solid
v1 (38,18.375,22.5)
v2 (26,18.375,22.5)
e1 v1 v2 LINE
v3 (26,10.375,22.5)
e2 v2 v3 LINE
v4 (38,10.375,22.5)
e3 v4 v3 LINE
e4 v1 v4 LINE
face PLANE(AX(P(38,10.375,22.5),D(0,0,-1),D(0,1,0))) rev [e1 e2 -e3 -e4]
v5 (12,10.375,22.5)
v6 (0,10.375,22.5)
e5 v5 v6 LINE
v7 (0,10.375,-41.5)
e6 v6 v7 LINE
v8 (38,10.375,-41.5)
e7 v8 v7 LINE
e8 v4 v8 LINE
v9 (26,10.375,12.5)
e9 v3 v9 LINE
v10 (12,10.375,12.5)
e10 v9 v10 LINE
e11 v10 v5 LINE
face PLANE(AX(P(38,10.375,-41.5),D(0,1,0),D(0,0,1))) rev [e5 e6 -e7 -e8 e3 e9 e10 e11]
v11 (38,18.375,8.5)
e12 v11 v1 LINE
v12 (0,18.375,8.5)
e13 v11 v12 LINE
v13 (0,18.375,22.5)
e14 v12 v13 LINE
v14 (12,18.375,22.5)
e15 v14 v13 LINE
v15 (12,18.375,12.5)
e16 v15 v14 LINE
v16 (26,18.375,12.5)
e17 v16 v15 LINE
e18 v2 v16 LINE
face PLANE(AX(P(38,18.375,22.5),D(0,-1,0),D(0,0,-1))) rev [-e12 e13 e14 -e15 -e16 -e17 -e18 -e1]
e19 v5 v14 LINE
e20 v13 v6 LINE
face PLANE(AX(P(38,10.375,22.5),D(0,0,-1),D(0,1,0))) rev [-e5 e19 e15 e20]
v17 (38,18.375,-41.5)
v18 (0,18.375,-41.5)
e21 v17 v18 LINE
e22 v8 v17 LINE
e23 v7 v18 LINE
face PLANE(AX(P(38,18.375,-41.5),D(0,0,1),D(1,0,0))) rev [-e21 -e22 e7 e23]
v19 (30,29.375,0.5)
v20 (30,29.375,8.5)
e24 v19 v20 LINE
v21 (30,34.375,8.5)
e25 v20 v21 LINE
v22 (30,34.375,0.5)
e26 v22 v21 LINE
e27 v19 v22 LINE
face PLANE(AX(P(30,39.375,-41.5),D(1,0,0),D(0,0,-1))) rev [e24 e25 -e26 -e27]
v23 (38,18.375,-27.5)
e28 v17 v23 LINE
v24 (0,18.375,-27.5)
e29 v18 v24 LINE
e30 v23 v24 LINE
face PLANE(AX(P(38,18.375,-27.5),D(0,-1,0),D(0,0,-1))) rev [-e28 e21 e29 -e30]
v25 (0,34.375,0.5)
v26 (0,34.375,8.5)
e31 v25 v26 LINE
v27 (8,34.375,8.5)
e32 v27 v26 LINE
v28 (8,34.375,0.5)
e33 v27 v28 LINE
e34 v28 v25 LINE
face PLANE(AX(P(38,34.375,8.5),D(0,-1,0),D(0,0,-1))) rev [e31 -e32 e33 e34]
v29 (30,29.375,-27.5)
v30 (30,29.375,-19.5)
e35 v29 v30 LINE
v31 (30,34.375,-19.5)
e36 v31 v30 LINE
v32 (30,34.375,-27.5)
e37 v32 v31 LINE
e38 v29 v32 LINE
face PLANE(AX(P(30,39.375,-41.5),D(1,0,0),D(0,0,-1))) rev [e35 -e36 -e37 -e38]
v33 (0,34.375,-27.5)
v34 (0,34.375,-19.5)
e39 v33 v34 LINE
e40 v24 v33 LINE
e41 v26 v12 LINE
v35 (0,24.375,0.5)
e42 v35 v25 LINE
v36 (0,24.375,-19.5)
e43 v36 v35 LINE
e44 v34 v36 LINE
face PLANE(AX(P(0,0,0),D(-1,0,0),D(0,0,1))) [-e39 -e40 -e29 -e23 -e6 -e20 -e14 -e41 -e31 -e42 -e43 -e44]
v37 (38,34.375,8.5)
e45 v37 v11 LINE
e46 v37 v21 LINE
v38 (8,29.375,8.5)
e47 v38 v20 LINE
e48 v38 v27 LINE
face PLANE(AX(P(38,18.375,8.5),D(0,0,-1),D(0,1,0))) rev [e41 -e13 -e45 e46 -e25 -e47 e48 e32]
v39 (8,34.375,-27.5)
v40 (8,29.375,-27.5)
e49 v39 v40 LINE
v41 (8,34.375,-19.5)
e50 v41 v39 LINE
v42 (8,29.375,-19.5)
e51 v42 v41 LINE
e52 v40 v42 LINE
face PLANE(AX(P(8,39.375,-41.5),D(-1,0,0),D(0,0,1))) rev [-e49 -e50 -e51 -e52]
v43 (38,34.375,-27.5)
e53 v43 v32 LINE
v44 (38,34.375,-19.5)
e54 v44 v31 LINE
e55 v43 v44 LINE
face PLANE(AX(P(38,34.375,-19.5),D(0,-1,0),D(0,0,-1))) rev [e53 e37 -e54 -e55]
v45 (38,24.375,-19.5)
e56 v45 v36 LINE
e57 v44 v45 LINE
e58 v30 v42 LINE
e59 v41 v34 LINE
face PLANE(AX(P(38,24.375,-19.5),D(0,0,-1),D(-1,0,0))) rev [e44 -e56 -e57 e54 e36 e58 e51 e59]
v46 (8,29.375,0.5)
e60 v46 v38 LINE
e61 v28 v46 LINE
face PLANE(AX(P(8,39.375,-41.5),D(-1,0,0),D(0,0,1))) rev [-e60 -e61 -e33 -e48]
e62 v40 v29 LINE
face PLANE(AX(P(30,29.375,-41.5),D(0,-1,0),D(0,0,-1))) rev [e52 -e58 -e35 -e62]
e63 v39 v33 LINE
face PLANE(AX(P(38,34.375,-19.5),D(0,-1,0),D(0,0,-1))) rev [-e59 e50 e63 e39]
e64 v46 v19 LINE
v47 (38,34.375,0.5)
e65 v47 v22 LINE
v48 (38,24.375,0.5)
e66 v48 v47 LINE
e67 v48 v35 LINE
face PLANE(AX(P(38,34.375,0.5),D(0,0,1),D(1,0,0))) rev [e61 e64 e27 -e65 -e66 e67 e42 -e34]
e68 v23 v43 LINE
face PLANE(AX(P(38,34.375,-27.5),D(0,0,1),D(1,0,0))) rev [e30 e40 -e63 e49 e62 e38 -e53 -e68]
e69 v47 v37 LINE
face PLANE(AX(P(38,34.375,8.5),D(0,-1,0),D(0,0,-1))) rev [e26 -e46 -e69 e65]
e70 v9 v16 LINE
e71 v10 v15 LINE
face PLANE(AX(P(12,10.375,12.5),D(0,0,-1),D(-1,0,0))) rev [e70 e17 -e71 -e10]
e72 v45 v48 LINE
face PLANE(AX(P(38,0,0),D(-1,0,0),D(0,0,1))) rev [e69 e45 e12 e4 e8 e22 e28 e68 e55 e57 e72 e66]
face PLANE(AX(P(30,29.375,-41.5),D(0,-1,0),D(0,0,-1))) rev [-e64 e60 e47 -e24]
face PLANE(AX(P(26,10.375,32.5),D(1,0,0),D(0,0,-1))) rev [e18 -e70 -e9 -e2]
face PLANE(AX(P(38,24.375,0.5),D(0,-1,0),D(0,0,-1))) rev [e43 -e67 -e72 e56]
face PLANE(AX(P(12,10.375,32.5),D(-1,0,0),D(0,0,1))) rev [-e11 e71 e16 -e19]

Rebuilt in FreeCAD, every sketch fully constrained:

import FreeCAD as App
import Part
import Sketcher
from FreeCAD import Vector

doc = App.newDocument("Part")
params = doc.addObject("Spreadsheet::Sheet", "Params")
for row, (alias, value) in enumerate([
    ("sketch1_width", "8 mm"),
    ("sketch1_width2", "16 mm"),
    ("sketch1_width3", "10 mm"),
    ("sketch1_height", "64 mm"),
    ("sketch1_height2", "14 mm"),
    ("pad1_length", "38 mm"),
    ("sketch2_width", "22 mm"),
    ("sketch2_height", "10 mm"),
    ("sketch3_width", "14 mm"),
    ("sketch3_height", "20 mm"),
], start=1):
    params.set(f"A{row}", alias)
    params.set(f"B{row}", "=" + value)
    params.setAlias(f"B{row}", alias)

body = doc.addObject("PartDesign::Body", "Body")

# Sketch on YZ plane
sketch1 = body.newObject("Sketcher::SketchObject", "Sketch")
sketch1.AttachmentSupport = (doc.getObject("YZ_Plane"), [""])
sketch1.MapMode = "FlatFace"
sketch1.addGeometry([
    Part.LineSegment(Vector(10, 22, 0), Vector(10, -42, 0)),  # 0
    Part.LineSegment(Vector(10, -42, 0), Vector(18, -42, 0)),  # 1
    Part.LineSegment(Vector(18, -42, 0), Vector(18, -28, 0)),  # 2
    Part.LineSegment(Vector(18, -28, 0), Vector(34, -28, 0)),  # 3
    Part.LineSegment(Vector(34, -28, 0), Vector(34, -20, 0)),  # 4
    Part.LineSegment(Vector(34, -20, 0), Vector(24, -20, 0)),  # 5
    Part.LineSegment(Vector(24, -20, 0), Vector(24, 0, 0)),  # 6
    Part.LineSegment(Vector(24, 0, 0), Vector(34, 0, 0)),  # 7
    Part.LineSegment(Vector(34, 0, 0), Vector(34, 8, 0)),  # 8
    Part.LineSegment(Vector(34, 8, 0), Vector(18, 8, 0)),  # 9
    Part.LineSegment(Vector(18, 8, 0), Vector(18, 22, 0)),  # 10
    Part.LineSegment(Vector(18, 22, 0), Vector(10, 22, 0)),  # 11
], False)
sketch1.addConstraint([
    Sketcher.Constraint("Coincident", 0, 2, 1, 1),
    Sketcher.Constraint("Coincident", 1, 2, 2, 1),
    Sketcher.Constraint("Coincident", 2, 2, 3, 1),
    Sketcher.Constraint("Coincident", 3, 2, 4, 1),
    Sketcher.Constraint("Coincident", 4, 2, 5, 1),
    Sketcher.Constraint("Coincident", 5, 2, 6, 1),
    Sketcher.Constraint("Coincident", 6, 2, 7, 1),
    Sketcher.Constraint("Coincident", 7, 2, 8, 1),
    Sketcher.Constraint("Coincident", 8, 2, 9, 1),
    Sketcher.Constraint("Coincident", 9, 2, 10, 1),
    Sketcher.Constraint("Coincident", 10, 2, 11, 1),
    Sketcher.Constraint("Coincident", 11, 2, 0, 1),
    Sketcher.Constraint("Vertical", 0),
    Sketcher.Constraint("Horizontal", 1),
    Sketcher.Constraint("Vertical", 2),
    Sketcher.Constraint("Horizontal", 3),
    Sketcher.Constraint("Vertical", 4),
    Sketcher.Constraint("Horizontal", 5),
    Sketcher.Constraint("Vertical", 6),
    Sketcher.Constraint("Horizontal", 7),
    Sketcher.Constraint("Vertical", 8),
    Sketcher.Constraint("Horizontal", 9),
    Sketcher.Constraint("Vertical", 10),
    Sketcher.Constraint("Horizontal", 11),
    Sketcher.Constraint("Vertical", 4, 2, 7, 2),
    Sketcher.Constraint("Vertical", 2, 2, 9, 2),
    Sketcher.Constraint("Equal", 11, 4),
    Sketcher.Constraint("Equal", 4, 8),
    Sketcher.Constraint("Equal", 2, 10),
    Sketcher.Constraint("DistanceX", 1, 1, 1, 2, 8.0),
    Sketcher.Constraint("DistanceX", 3, 1, 3, 2, 16.0),
    Sketcher.Constraint("DistanceX", 5, 2, 5, 1, 10.0),
    Sketcher.Constraint("DistanceY", 0, 2, 0, 1, 64.0),
    Sketcher.Constraint("DistanceY", 2, 1, 2, 2, 14.0),
    Sketcher.Constraint("DistanceY", 0, 2, -1, 1, 41.5),
    Sketcher.Constraint("DistanceX", -1, 1, 0, 2, 10.375),
])
sketch1.setExpression("Constraints[29]", "Params.sketch1_width")
sketch1.setExpression("Constraints[30]", "Params.sketch1_width2")
sketch1.setExpression("Constraints[31]", "Params.sketch1_width3")
sketch1.setExpression("Constraints[32]", "Params.sketch1_height")
sketch1.setExpression("Constraints[33]", "Params.sketch1_height2")
pad1 = body.newObject("PartDesign::Pad", "Pad")
pad1.Profile = sketch1
pad1.setExpression("Length", "Params.pad1_length")

# Sketch on XY plane
sketch2 = body.newObject("Sketcher::SketchObject", "Sketch001")
sketch2.AttachmentSupport = (doc.getObject("XY_Plane"), [""])
sketch2.MapMode = "FlatFace"
sketch2.AttachmentOffset = App.Placement(Vector(0, 0, 8.5), App.Rotation())
sketch2.addGeometry([
    Part.LineSegment(Vector(8, 39, 0), Vector(8, 29, 0)),
    Part.LineSegment(Vector(8, 29, 0), Vector(30, 29, 0)),
    Part.LineSegment(Vector(30, 29, 0), Vector(30, 39, 0)),
    Part.LineSegment(Vector(30, 39, 0), Vector(8, 39, 0)),
], False)
sketch2.addConstraint([
    Sketcher.Constraint("Coincident", 0, 2, 1, 1),
    Sketcher.Constraint("Coincident", 1, 2, 2, 1),
    Sketcher.Constraint("Coincident", 2, 2, 3, 1),
    Sketcher.Constraint("Coincident", 3, 2, 0, 1),
    Sketcher.Constraint("Vertical", 0),
    Sketcher.Constraint("Horizontal", 1),
    Sketcher.Constraint("Vertical", 2),
    Sketcher.Constraint("Horizontal", 3),
    Sketcher.Constraint("DistanceX", 1, 1, 1, 2, 22.0),
    Sketcher.Constraint("DistanceY", 0, 2, 0, 1, 10.0),
    Sketcher.Constraint("DistanceX", -1, 1, 0, 2, 8.0),
    Sketcher.Constraint("DistanceY", -1, 1, 0, 2, 29.375),
])
sketch2.setExpression("Constraints[8]", "Params.sketch2_width")
sketch2.setExpression("Constraints[9]", "Params.sketch2_height")
pocket1 = body.newObject("PartDesign::Pocket", "Pocket")
pocket1.Profile = sketch2
pocket1.Type = "ThroughAll"

# Sketch on XZ plane
sketch3 = body.newObject("Sketcher::SketchObject", "Sketch002")
sketch3.AttachmentSupport = (doc.getObject("XZ_Plane"), [""])
sketch3.MapMode = "FlatFace"
sketch3.AttachmentOffset = App.Placement(Vector(0, 0, -18.375), App.Rotation())
sketch3.addGeometry([
    Part.LineSegment(Vector(12, 12, 0), Vector(12, 32, 0)),
    Part.LineSegment(Vector(12, 32, 0), Vector(26, 32, 0)),
    Part.LineSegment(Vector(26, 32, 0), Vector(26, 12, 0)),
    Part.LineSegment(Vector(26, 12, 0), Vector(12, 12, 0)),
], False)
sketch3.addConstraint([
    Sketcher.Constraint("Coincident", 0, 2, 1, 1),
    Sketcher.Constraint("Coincident", 1, 2, 2, 1),
    Sketcher.Constraint("Coincident", 2, 2, 3, 1),
    Sketcher.Constraint("Coincident", 3, 2, 0, 1),
    Sketcher.Constraint("Vertical", 0),
    Sketcher.Constraint("Horizontal", 1),
    Sketcher.Constraint("Vertical", 2),
    Sketcher.Constraint("Horizontal", 3),
    Sketcher.Constraint("DistanceX", 1, 1, 1, 2, 14.0),
    Sketcher.Constraint("DistanceY", 0, 1, 0, 2, 20.0),
    Sketcher.Constraint("DistanceX", -1, 1, 0, 2, 12.0),
    Sketcher.Constraint("DistanceY", -1, 1, 0, 2, 32.5),
])
sketch3.setExpression("Constraints[8]", "Params.sketch3_width")
sketch3.setExpression("Constraints[9]", "Params.sketch3_height")
pocket2 = body.newObject("PartDesign::Pocket", "Pocket001")
pocket2.Profile = sketch3
pocket2.Type = "ThroughAll"
pocket2.Reversed = True

doc.recompute()
